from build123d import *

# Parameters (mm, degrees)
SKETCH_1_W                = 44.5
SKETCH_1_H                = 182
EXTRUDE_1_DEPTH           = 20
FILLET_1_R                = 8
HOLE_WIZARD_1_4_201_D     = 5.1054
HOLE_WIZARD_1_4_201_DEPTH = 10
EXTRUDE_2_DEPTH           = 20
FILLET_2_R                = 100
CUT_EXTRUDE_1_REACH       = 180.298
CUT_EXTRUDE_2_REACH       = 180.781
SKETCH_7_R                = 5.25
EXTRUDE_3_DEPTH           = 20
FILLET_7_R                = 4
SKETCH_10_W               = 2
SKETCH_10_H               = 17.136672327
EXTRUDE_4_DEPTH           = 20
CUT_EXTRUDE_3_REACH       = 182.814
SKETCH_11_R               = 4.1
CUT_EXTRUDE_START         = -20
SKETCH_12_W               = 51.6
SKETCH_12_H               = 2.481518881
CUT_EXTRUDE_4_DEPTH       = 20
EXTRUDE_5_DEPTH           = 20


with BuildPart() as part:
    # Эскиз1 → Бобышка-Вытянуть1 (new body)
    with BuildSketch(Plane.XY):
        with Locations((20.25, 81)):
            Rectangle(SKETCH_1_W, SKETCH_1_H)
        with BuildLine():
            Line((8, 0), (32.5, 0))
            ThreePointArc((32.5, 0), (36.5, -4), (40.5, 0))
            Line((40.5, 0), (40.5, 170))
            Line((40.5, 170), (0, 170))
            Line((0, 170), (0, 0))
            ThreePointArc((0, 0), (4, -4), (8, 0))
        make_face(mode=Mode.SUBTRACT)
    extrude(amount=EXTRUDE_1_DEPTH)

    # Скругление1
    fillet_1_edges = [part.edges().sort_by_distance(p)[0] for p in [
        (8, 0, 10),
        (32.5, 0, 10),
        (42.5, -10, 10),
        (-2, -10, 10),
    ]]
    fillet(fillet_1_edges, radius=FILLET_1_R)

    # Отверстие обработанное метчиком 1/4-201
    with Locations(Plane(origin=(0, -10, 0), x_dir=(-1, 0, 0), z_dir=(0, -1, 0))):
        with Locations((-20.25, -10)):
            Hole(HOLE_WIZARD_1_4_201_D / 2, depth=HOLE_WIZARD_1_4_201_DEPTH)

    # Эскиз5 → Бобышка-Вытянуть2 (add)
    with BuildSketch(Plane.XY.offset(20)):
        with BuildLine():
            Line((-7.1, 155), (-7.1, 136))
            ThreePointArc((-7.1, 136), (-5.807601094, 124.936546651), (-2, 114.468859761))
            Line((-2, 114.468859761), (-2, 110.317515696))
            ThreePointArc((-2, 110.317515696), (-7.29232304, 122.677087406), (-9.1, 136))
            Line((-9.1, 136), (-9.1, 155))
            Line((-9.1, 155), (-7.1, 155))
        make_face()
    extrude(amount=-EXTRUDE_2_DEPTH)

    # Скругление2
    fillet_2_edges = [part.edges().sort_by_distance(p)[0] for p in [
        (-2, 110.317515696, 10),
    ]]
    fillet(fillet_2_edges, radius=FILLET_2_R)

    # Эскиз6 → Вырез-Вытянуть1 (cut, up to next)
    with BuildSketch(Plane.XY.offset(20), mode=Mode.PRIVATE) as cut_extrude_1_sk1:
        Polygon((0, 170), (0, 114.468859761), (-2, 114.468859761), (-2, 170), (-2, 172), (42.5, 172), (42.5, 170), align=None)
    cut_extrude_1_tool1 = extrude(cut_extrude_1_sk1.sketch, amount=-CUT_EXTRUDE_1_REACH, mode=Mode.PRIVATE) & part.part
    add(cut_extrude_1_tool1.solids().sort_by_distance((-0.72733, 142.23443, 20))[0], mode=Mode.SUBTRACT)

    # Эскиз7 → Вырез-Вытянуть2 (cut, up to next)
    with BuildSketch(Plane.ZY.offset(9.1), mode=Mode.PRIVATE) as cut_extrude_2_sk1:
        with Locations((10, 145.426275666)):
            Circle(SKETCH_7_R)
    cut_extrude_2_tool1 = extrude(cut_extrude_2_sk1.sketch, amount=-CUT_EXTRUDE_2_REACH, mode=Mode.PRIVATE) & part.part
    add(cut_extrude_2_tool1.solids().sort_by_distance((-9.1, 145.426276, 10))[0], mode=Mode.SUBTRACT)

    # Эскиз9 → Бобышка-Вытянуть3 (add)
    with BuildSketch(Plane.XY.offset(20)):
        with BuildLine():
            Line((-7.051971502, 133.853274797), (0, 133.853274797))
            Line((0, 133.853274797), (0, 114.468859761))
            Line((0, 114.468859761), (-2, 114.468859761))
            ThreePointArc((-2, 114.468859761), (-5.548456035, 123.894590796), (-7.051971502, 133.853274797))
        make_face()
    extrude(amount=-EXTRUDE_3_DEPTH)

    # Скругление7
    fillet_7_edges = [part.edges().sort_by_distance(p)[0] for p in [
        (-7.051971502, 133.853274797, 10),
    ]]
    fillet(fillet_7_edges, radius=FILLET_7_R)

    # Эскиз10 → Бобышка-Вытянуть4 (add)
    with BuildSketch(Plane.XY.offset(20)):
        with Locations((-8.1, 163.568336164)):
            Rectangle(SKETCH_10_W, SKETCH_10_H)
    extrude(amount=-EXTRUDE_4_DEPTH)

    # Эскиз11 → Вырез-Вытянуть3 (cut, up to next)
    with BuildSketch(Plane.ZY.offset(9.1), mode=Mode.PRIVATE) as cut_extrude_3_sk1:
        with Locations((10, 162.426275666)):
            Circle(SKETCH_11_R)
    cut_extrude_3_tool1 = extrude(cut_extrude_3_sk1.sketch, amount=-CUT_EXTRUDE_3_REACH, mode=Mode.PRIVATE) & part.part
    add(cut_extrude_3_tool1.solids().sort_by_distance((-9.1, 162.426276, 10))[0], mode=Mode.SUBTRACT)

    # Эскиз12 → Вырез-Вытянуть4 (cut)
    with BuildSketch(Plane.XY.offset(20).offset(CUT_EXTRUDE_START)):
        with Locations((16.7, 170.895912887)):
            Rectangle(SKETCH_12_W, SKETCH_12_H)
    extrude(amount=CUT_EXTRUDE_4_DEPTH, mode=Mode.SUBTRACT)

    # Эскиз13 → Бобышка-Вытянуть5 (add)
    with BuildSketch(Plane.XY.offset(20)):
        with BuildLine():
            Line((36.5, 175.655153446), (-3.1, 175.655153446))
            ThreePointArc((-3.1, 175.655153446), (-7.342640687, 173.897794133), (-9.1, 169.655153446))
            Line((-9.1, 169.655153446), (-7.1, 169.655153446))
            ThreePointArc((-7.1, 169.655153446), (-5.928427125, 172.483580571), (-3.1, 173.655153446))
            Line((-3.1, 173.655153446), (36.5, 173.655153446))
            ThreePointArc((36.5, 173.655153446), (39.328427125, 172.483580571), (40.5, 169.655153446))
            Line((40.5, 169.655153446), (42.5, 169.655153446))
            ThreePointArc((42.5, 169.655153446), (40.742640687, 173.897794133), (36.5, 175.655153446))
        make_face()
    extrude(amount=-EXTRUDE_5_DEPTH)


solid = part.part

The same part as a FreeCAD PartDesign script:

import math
import FreeCAD as App
import Part
import Sketcher


def edges_at(feature, points):
    """Names of the edges that pass closest to the given points."""
    edges = feature.Shape.Edges
    near = lambda p: min(range(len(edges)), key=lambda i: edges[i].distToShape(Part.Vertex(*p))[0])
    return sorted({f"Edge{near(p) + 1}" for p in points})


def add_polygon(sketch, points):
    """Adds a closed chain of lines whose ends are joined by coincident constraints."""
    first, n = sketch.GeometryCount, len(points)
    for a, b in zip(points, points[1:] + points[:1]):
        sketch.addGeometry(Part.LineSegment(App.Vector(*a, 0), App.Vector(*b, 0)), False)
    for i in range(n):
        sketch.addConstraint(Sketcher.Constraint("Coincident", first + i, 2, first + (i + 1) % n, 1))

doc = App.newDocument("Part")
params = doc.addObject("Spreadsheet::Sheet", "Params")
for row, (alias, value) in enumerate([
    ("sketch1_radius", "4 mm"),
    ("sketch1_height", "182 mm"),
    ("sketch1_height2", "170 mm"),
    ("sketch1_width", "44.5 mm"),
    ("sketch1_width2", "24.5 mm"),
    ("pad1_length", "20 mm"),
    ("fillet_radius", "8 mm"),
    ("hole_diameter", "5.1054 mm"),
    ("hole_depth", "10 mm"),
    ("sketch3_radius", "50 mm"),
    ("sketch3_radius2", "48 mm"),
    ("sketch3_height", "19 mm"),
    ("pad2_length", "20 mm"),
    ("fillet2_radius", "100 mm"),
    ("sketch4_width", "2 mm"),
    ("sketch4_width2", "42.5 mm"),
    ("pocket1_length", "20 mm"),
    ("sketch5_diameter", "10.5 mm"),
    ("sketch6_radius", "48 mm"),
    ("sketch6_width", "2 mm"),
    ("pad3_length", "20 mm"),
    ("fillet3_radius", "4 mm"),
    ("sketch7_width", "2 mm"),
    ("pad4_length", "20 mm"),
    ("sketch8_diameter", "8.2 mm"),
    ("sketch9_width", "51.6 mm"),
    ("pocket4_length", "20 mm"),
    ("sketch10_radius", "6 mm"),
    ("sketch10_radius2", "4 mm"),
    ("sketch10_width", "39.6 mm"),
    ("pad5_length", "20 mm"),
], start=1):
    params.set(f"A{row}", alias)
    params.set(f"B{row}", "=" + value)
    params.setAlias(f"B{row}", alias)

body = doc.addObject("PartDesign::Body", "Body")

sketch1 = body.newObject("Sketcher::SketchObject", "Sketch")
sketch1.AttachmentSupport = (doc.getObject("XY_Plane"), [""])
sketch1.MapMode = "FlatFace"
add_polygon(sketch1, [(-2, 172), (-2, -10), (42.5, -10), (42.5, 172)])
sketch1.addGeometry(Part.LineSegment(App.Vector(32.5, 0, 0), App.Vector(8, 0, 0)), False)
sketch1.addGeometry(Part.ArcOfCircle(Part.Circle(App.Vector(4, 0, 0), App.Vector(0, 0, 1), 4), math.radians(180), math.radians(360)), False)
sketch1.addGeometry(Part.LineSegment(App.Vector(0, 0, 0), App.Vector(0, 170, 0)), False)
sketch1.addGeometry(Part.LineSegment(App.Vector(0, 170, 0), App.Vector(40.5, 170, 0)), False)
sketch1.addGeometry(Part.LineSegment(App.Vector(40.5, 170, 0), App.Vector(40.5, 0, 0)), False)
sketch1.addGeometry(Part.ArcOfCircle(Part.Circle(App.Vector(36.5, 0, 0), App.Vector(0, 0, 1), 4), math.radians(180), math.radians(360)), False)
sketch1.addConstraint(Sketcher.Constraint("Coincident", 4, 2, 5, 2))
sketch1.addConstraint(Sketcher.Constraint("Tangent", 5, 1, 6, 1))
sketch1.addConstraint(Sketcher.Constraint("Coincident", 6, 2, 7, 1))
sketch1.addConstraint(Sketcher.Constraint("Coincident", 7, 2, 8, 1))
sketch1.addConstraint(Sketcher.Constraint("Tangent", 8, 2, 9, 2))
sketch1.addConstraint(Sketcher.Constraint("Coincident", 9, 1, 4, 1))
sketch1.addConstraint(Sketcher.Constraint("Vertical", 0))
sketch1.addConstraint(Sketcher.Constraint("Horizontal", 1))
sketch1.addConstraint(Sketcher.Constraint("Vertical", 2))
sketch1.addConstraint(Sketcher.Constraint("Horizontal", 3))
sketch1.addConstraint(Sketcher.Constraint("Horizontal", 4))
sketch1.addConstraint(Sketcher.Constraint("Vertical", 6))
sketch1.addConstraint(Sketcher.Constraint("Horizontal", 7))
sketch1.addConstraint(Sketcher.Constraint("Vertical", 8))
sketch1.addConstraint(Sketcher.Constraint("Coincident", 5, 1, -1, 1))
sketch1.addConstraint(Sketcher.Constraint("Equal", 5, 9))
sketch1.addConstraint(Sketcher.Constraint("PointOnObject", 9, 3, -1))
sketch1.addConstraint(Sketcher.Constraint("PointOnObject", 4, 2, -1))
sketch1.addConstraint(Sketcher.Constraint("Radius", 5, 4.0))
sketch1.addConstraint(Sketcher.Constraint("DistanceY", 0, 2, 0, 1, 182.0))
sketch1.addConstraint(Sketcher.Constraint("DistanceY", 6, 1, 6, 2, 170.0))
sketch1.addConstraint(Sketcher.Constraint("DistanceX", 1, 1, 1, 2, 44.5))
sketch1.addConstraint(Sketcher.Constraint("DistanceX", 4, 2, 4, 1, 24.5))
sketch1.addConstraint(Sketcher.Constraint("DistanceX", 0, 2, -1, 1, 2.0))
sketch1.addConstraint(Sketcher.Constraint("DistanceY", 0, 2, -1, 1, 10.0))
sketch1.setExpression("Constraints[22]", "Params.sketch1_radius")
sketch1.setExpression("Constraints[23]", "Params.sketch1_height")
sketch1.setExpression("Constraints[24]", "Params.sketch1_height2")
sketch1.setExpression("Constraints[25]", "Params.sketch1_width")
sketch1.setExpression("Constraints[26]", "Params.sketch1_width2")
pad1 = body.newObject("PartDesign::Pad", "Pad")
pad1.Profile = sketch1
pad1.setExpression("Length", "Params.pad1_length")
doc.recompute()

fillet = body.newObject("PartDesign::Fillet", "Fillet")
fillet.Base = (pad1, edges_at(pad1, [
    (8, 0, 10),
    (32.5, 0, 10),
    (42.5, -10, 10),
    (-2, -10, 10),
]))
fillet.setExpression("Radius", "Params.fillet_radius")

sketch2 = body.newObject("Sketcher::SketchObject", "Sketch001")
sketch2.AttachmentSupport = (doc.getObject("XZ_Plane"), [""])
sketch2.MapMode = "FlatFace"
sketch2.AttachmentOffset = App.Placement(App.Vector(0, 0, 10), App.Rotation())
sketch2.addGeometry(Part.Circle(App.Vector(20.2, 10, 0), App.Vector(0, 0, 1), 2.6), False)
sketch2.addConstraint(Sketcher.Constraint("DistanceY", -1, 1, 0, 3, 10.0))
sketch2.addConstraint(Sketcher.Constraint("Diameter", 0, 5.1054))
sketch2.addConstraint(Sketcher.Constraint("DistanceX", -1, 1, 0, 3, 20.25))
doc.recompute()
hole = body.newObject("PartDesign::Hole", "Hole")
hole.Profile = sketch2
hole.ThreadType = "None"
hole.setExpression("Diameter", "Params.hole_diameter")
hole.DepthType = "Dimension"
hole.setExpression("Depth", "Params.hole_depth")
hole.DrillPoint = "Flat"

sketch3 = body.newObject("Sketcher::SketchObject", "Sketch002")
sketch3.AttachmentSupport = (doc.getObject("XY_Plane"), [""])
sketch3.MapMode = "FlatFace"
sketch3.AttachmentOffset = App.Placement(App.Vector(0, 0, 20), App.Rotation())
sketch3.addGeometry(Part.LineSegment(App.Vector(-7.1, 136, 0), App.Vector(-7.1, 155, 0)), False)
sketch3.addGeometry(Part.LineSegment(App.Vector(-7.1, 155, 0), App.Vector(-9.1, 155, 0)), False)
sketch3.addGeometry(Part.LineSegment(App.Vector(-9.1, 155, 0), App.Vector(-9.1, 136, 0)), False)
sketch3.addGeometry(Part.ArcOfCircle(Part.Circle(App.Vector(40.9, 136, 0), App.Vector(0, 0, 1), 50), math.radians(-180), math.radians(-149)), False)
sketch3.addGeometry(Part.LineSegment(App.Vector(-2, 110.3, 0), App.Vector(-2, 114.5, 0)), False)
sketch3.addGeometry(Part.ArcOfCircle(Part.Circle(App.Vector(40.9, 136, 0), App.Vector(0, 0, 1), 48), math.radians(-180), math.radians(-153)), False)
sketch3.addConstraint(Sketcher.Constraint("Coincident", 0, 2, 1, 1))
sketch3.addConstraint(Sketcher.Constraint("Coincident", 1, 2, 2, 1))
sketch3.addConstraint(Sketcher.Constraint("Tangent", 2, 2, 3, 1))
sketch3.addConstraint(Sketcher.Constraint("Coincident", 3, 2, 4, 1))
sketch3.addConstraint(Sketcher.Constraint("Coincident", 4, 2, 5, 2))
sketch3.addConstraint(Sketcher.Constraint("Tangent", 5, 1, 0, 1))
sketch3.addConstraint(Sketcher.Constraint("Vertical", 0))
sketch3.addConstraint(Sketcher.Constraint("Horizontal", 1))
sketch3.addConstraint(Sketcher.Constraint("Vertical", 2))
sketch3.addConstraint(Sketcher.Constraint("Vertical", 4))
sketch3.addConstraint(Sketcher.Constraint("Coincident", 5, 3, 3, 3))
sketch3.addConstraint(Sketcher.Constraint("Radius", 3, 50.0))
sketch3.addConstraint(Sketcher.Constraint("Radius", 5, 48.0))
sketch3.addConstraint(Sketcher.Constraint("DistanceY", 0, 1, 0, 2, 19.0))
sketch3.addConstraint(Sketcher.Constraint("DistanceY", -1, 1, 3, 3, 136.0))
sketch3.addConstraint(Sketcher.Constraint("DistanceX", 3, 2, -1, 1, 2.0))
sketch3.addConstraint(Sketcher.Constraint("DistanceX", -1, 1, 3, 3, 40.9))
sketch3.setExpression("Constraints[11]", "Params.sketch3_radius")
sketch3.setExpression("Constraints[12]", "Params.sketch3_radius2")
sketch3.setExpression("Constraints[13]", "Params.sketch3_height")
pad2 = body.newObject("PartDesign::Pad", "Pad001")
pad2.Profile = sketch3
pad2.setExpression("Length", "Params.pad2_length")
pad2.Reversed = True
doc.recompute()

fillet2 = body.newObject("PartDesign::Fillet", "Fillet001")
fillet2.Base = (pad2, edges_at(pad2, [(-2, 110.318, 10)]))
fillet2.setExpression("Radius", "Params.fillet2_radius")

sketch4 = body.newObject("Sketcher::SketchObject", "Sketch003")
sketch4.AttachmentSupport = (doc.getObject("XY_Plane"), [""])
sketch4.MapMode = "FlatFace"
sketch4.AttachmentOffset = App.Placement(App.Vector(0, 0, 20), App.Rotation())
add_polygon(sketch4, [(0, 114.5), (0, 170), (42.5, 170), (42.5, 172), (-2, 172), (-2, 114.5)])
sketch4.addConstraint(Sketcher.Constraint("Vertical", 0))
sketch4.addConstraint(Sketcher.Constraint("Horizontal", 1))
sketch4.addConstraint(Sketcher.Constraint("Vertical", 2))
sketch4.addConstraint(Sketcher.Constraint("Horizontal", 3))
sketch4.addConstraint(Sketcher.Constraint("Vertical", 4))
sketch4.addConstraint(Sketcher.Constraint("Horizontal", 5))
sketch4.addConstraint(Sketcher.Constraint("PointOnObject", 0, 2, -2))
sketch4.addConstraint(Sketcher.Constraint("Equal", 5, 2))
sketch4.addConstraint(Sketcher.Constraint("DistanceX", 5, 1, 5, 2, 2.0))
sketch4.addConstraint(Sketcher.Constraint("DistanceX", 1, 1, 1, 2, 42.5))
sketch4.addConstraint(Sketcher.Constraint("DistanceY", -1, 1, 0, 2, 170.0))
sketch4.addConstraint(Sketcher.Constraint("DistanceY", 0, 1, 0, 2, 55.53114))
sketch4.setExpression("Constraints[14]", "Params.sketch4_width")
sketch4.setExpression("Constraints[15]", "Params.sketch4_width2")
pocket1 = body.newObject("PartDesign::Pocket", "Pocket")
pocket1.Profile = sketch4
pocket1.setExpression("Length", "Params.pocket1_length")

sketch5 = body.newObject("Sketcher::SketchObject", "Sketch004")
sketch5.AttachmentSupport = (doc.getObject("YZ_Plane"), [""])
sketch5.MapMode = "FlatFace"
sketch5.AttachmentOffset = App.Placement(App.Vector(0, 0, -9.1), App.Rotation())
sketch5.addGeometry(Part.Circle(App.Vector(145, 10, 0), App.Vector(0, 0, 1), 5), False)
sketch5.addConstraint(Sketcher.Constraint("Diameter", 0, 10.5))
sketch5.addConstraint(Sketcher.Constraint("DistanceY", -1, 1, 0, 3, 10.0))
sketch5.addConstraint(Sketcher.Constraint("DistanceX", -1, 1, 0, 3, 145.426276))
sketch5.setExpression("Constraints[0]", "Params.sketch5_diameter")
pocket2 = body.newObject("PartDesign::Pocket", "Pocket001")
pocket2.Profile = sketch5
pocket2.Type = "UpToFirst"
pocket2.Reversed = True

sketch6 = body.newObject("Sketcher::SketchObject", "Sketch005")
sketch6.AttachmentSupport = (doc.getObject("XY_Plane"), [""])
sketch6.MapMode = "FlatFace"
sketch6.AttachmentOffset = App.Placement(App.Vector(0, 0, 20), App.Rotation())
sketch6.addGeometry(Part.LineSegment(App.Vector(0, 133.9, 0), App.Vector(-7.1, 133.9, 0)), False)
sketch6.addGeometry(Part.ArcOfCircle(Part.Circle(App.Vector(40.9, 136, 0), App.Vector(0, 0, 1), 48), math.radians(-177), math.radians(-153)), False)
sketch6.addGeometry(Part.LineSegment(App.Vector(-2, 114.5, 0), App.Vector(0, 114.5, 0)), False)
sketch6.addGeometry(Part.LineSegment(App.Vector(0, 114.5, 0), App.Vector(0, 133.9, 0)), False)
sketch6.addConstraint(Sketcher.Constraint("Coincident", 0, 2, 1, 1))
sketch6.addConstraint(Sketcher.Constraint("Coincident", 1, 2, 2, 1))
sketch6.addConstraint(Sketcher.Constraint("Coincident", 2, 2, 3, 1))
sketch6.addConstraint(Sketcher.Constraint("Coincident", 3, 2, 0, 1))
sketch6.addConstraint(Sketcher.Constraint("Horizontal", 0))
sketch6.addConstraint(Sketcher.Constraint("Horizontal", 2))
sketch6.addConstraint(Sketcher.Constraint("Vertical", 3))
sketch6.addConstraint(Sketcher.Constraint("PointOnObject", 2, 2, -2))
sketch6.addConstraint(Sketcher.Constraint("Radius", 1, 48.0))
sketch6.addConstraint(Sketcher.Constraint("DistanceX", 2, 1, 2, 2, 2.0))
sketch6.addConstraint(Sketcher.Constraint("DistanceY", -1, 1, 1, 3, 136.0))
sketch6.addConstraint(Sketcher.Constraint("DistanceX", -1, 1, 1, 3, 40.9))
sketch6.addConstraint(Sketcher.Constraint("DistanceX", 0, 2, 0, 1, 7.051972))
sketch6.setExpression("Constraints[8]", "Params.sketch6_radius")
sketch6.setExpression("Constraints[9]", "Params.sketch6_width")
pad3 = body.newObject("PartDesign::Pad", "Pad002")
pad3.Profile = sketch6
pad3.setExpression("Length", "Params.pad3_length")
pad3.Reversed = True
doc.recompute()

fillet3 = body.newObject("PartDesign::Fillet", "Fillet002")
fillet3.Base = (pad3, edges_at(pad3, [(-7.052, 133.853, 10)]))
fillet3.setExpression("Radius", "Params.fillet3_radius")

sketch7 = body.newObject("Sketcher::SketchObject", "Sketch006")
sketch7.AttachmentSupport = (doc.getObject("XY_Plane"), [""])
sketch7.MapMode = "FlatFace"
sketch7.AttachmentOffset = App.Placement(App.Vector(0, 0, 20), App.Rotation())
add_polygon(sketch7, [(-9.1, 172.1), (-9.1, 155), (-7.1, 155), (-7.1, 172.1)])
sketch7.addConstraint(Sketcher.Constraint("Vertical", 0))
sketch7.addConstraint(Sketcher.Constraint("Horizontal", 1))
sketch7.addConstraint(Sketcher.Constraint("Vertical", 2))
sketch7.addConstraint(Sketcher.Constraint("Horizontal", 3))
sketch7.addConstraint(Sketcher.Constraint("DistanceX", 1, 1, 1, 2, 2.0))
sketch7.addConstraint(Sketcher.Constraint("DistanceY", -1, 1, 0, 2, 155.0))
sketch7.addConstraint(Sketcher.Constraint("DistanceX", 0, 2, -1, 1, 9.1))
sketch7.addConstraint(Sketcher.Constraint("DistanceY", 0, 2, 0, 1, 17.136672))
sketch7.setExpression("Constraints[8]", "Params.sketch7_width")
pad4 = body.newObject("PartDesign::Pad", "Pad003")
pad4.Profile = sketch7
pad4.setExpression("Length", "Params.pad4_length")
pad4.Reversed = True

sketch8 = body.newObject("Sketcher::SketchObject", "Sketch007")
sketch8.AttachmentSupport = (doc.getObject("YZ_Plane"), [""])
sketch8.MapMode = "FlatFace"
sketch8.AttachmentOffset = App.Placement(App.Vector(0, 0, -9.1), App.Rotation())
sketch8.addGeometry(Part.Circle(App.Vector(162.4, 10, 0), App.Vector(0, 0, 1), 4.1), False)
sketch8.addConstraint(Sketcher.Constraint("Diameter", 0, 8.2))
sketch8.addConstraint(Sketcher.Constraint("DistanceY", -1, 1, 0, 3, 10.0))
sketch8.addConstraint(Sketcher.Constraint("DistanceX", -1, 1, 0, 3, 162.426276))
sketch8.setExpression("Constraints[0]", "Params.sketch8_diameter")
pocket3 = body.newObject("PartDesign::Pocket", "Pocket002")
pocket3.Profile = sketch8
pocket3.Type = "UpToFirst"
pocket3.Reversed = True

sketch9 = body.newObject("Sketcher::SketchObject", "Sketch008")
sketch9.AttachmentSupport = (doc.getObject("XY_Plane"), [""])
sketch9.MapMode = "FlatFace"
add_polygon(sketch9, [(-9.1, 172.1), (-9.1, 169.7), (42.5, 169.7), (42.5, 172.1)])
sketch9.addConstraint(Sketcher.Constraint("Vertical", 0))
sketch9.addConstraint(Sketcher.Constraint("Horizontal", 1))
sketch9.addConstraint(Sketcher.Constraint("Vertical", 2))
sketch9.addConstraint(Sketcher.Constraint("Horizontal", 3))
sketch9.addConstraint(Sketcher.Constraint("DistanceX", 1, 1, 1, 2, 51.6))
sketch9.addConstraint(Sketcher.Constraint("DistanceX", 0, 2, -1, 1, 9.1))
sketch9.addConstraint(Sketcher.Constraint("DistanceY", 0, 2, 0, 1, 2.481519))
sketch9.addConstraint(Sketcher.Constraint("DistanceY", -1, 1, 0, 2, 169.655153))
sketch9.setExpression("Constraints[8]", "Params.sketch9_width")
pocket4 = body.newObject("PartDesign::Pocket", "Pocket003")
pocket4.Profile = sketch9
pocket4.setExpression("Length", "Params.pocket4_length")
pocket4.Reversed = True

sketch10 = body.newObject("Sketcher::SketchObject", "Sketch009")
sketch10.AttachmentSupport = (doc.getObject("XY_Plane"), [""])
sketch10.MapMode = "FlatFace"
sketch10.AttachmentOffset = App.Placement(App.Vector(0, 0, 20), App.Rotation())
sketch10.addGeometry(Part.LineSegment(App.Vector(36.5, 175.7, 0), App.Vector(-3.1, 175.7, 0)), False)
sketch10.addGeometry(Part.ArcOfCircle(Part.Circle(App.Vector(-3.1, 169.7, 0), App.Vector(0, 0, 1), 6), math.radians(90), math.radians(180)), False)
sketch10.addGeometry(Part.LineSegment(App.Vector(-9.1, 169.7, 0), App.Vector(-7.1, 169.7, 0)), False)
sketch10.addGeometry(Part.ArcOfCircle(Part.Circle(App.Vector(-3.1, 169.7, 0), App.Vector(0, 0, 1), 4), math.radians(90), math.radians(180)), False)
sketch10.addGeometry(Part.LineSegment(App.Vector(-3.1, 173.7, 0), App.Vector(36.5, 173.7, 0)), False)
sketch10.addGeometry(Part.ArcOfCircle(Part.Circle(App.Vector(36.5, 169.7, 0), App.Vector(0, 0, 1), 4), math.radians(0), math.radians(90)), False)
sketch10.addGeometry(Part.LineSegment(App.Vector(40.5, 169.7, 0), App.Vector(42.5, 169.7, 0)), False)
sketch10.addGeometry(Part.ArcOfCircle(Part.Circle(App.Vector(36.5, 169.7, 0), App.Vector(0, 0, 1), 6), math.radians(0), math.radians(90)), False)
sketch10.addConstraint(Sketcher.Constraint("Tangent", 0, 2, 1, 1))
sketch10.addConstraint(Sketcher.Constraint("Coincident", 1, 2, 2, 1))
sketch10.addConstraint(Sketcher.Constraint("Coincident", 2, 2, 3, 2))
sketch10.addConstraint(Sketcher.Constraint("Tangent", 3, 1, 4, 1))
sketch10.addConstraint(Sketcher.Constraint("Tangent", 4, 2, 5, 2))
sketch10.addConstraint(Sketcher.Constraint("Coincident", 5, 1, 6, 1))
sketch10.addConstraint(Sketcher.Constraint("Coincident", 6, 2, 7, 1))
sketch10.addConstraint(Sketcher.Constraint("Tangent", 7, 2, 0, 1))
sketch10.addConstraint(Sketcher.Constraint("Horizontal", 0))
sketch10.addConstraint(Sketcher.Constraint("Horizontal", 2))
sketch10.addConstraint(Sketcher.Constraint("Horizontal", 4))
sketch10.addConstraint(Sketcher.Constraint("Horizontal", 6))
sketch10.addConstraint(Sketcher.Constraint("Coincident", 3, 3, 1, 3))
sketch10.addConstraint(Sketcher.Constraint("Coincident", 7, 3, 5, 3))
sketch10.addConstraint(Sketcher.Constraint("Equal", 3, 5))
sketch10.addConstraint(Sketcher.Constraint("Horizontal", 7, 3, 1, 2))
sketch10.addConstraint(Sketcher.Constraint("Horizontal", 2, 2, 5, 1))
sketch10.addConstraint(Sketcher.Constraint("Radius", 1, 6.0))
sketch10.addConstraint(Sketcher.Constraint("Radius", 3, 4.0))
sketch10.addConstraint(Sketcher.Constraint("DistanceX", 0, 2, 0, 1, 39.6))
sketch10.addConstraint(Sketcher.Constraint("DistanceX", 1, 3, -1, 1, 3.1))
sketch10.addConstraint(Sketcher.Constraint("DistanceY", -1, 1, 1, 3, 169.655153))
sketch10.setExpression("Constraints[17]", "Params.sketch10_radius")
sketch10.setExpression("Constraints[18]", "Params.sketch10_radius2")
sketch10.setExpression("Constraints[19]", "Params.sketch10_width")
pad5 = body.newObject("PartDesign::Pad", "Pad004")
pad5.Profile = sketch10
pad5.setExpression("Length", "Params.pad5_length")
pad5.Reversed = True

doc.recompute()
